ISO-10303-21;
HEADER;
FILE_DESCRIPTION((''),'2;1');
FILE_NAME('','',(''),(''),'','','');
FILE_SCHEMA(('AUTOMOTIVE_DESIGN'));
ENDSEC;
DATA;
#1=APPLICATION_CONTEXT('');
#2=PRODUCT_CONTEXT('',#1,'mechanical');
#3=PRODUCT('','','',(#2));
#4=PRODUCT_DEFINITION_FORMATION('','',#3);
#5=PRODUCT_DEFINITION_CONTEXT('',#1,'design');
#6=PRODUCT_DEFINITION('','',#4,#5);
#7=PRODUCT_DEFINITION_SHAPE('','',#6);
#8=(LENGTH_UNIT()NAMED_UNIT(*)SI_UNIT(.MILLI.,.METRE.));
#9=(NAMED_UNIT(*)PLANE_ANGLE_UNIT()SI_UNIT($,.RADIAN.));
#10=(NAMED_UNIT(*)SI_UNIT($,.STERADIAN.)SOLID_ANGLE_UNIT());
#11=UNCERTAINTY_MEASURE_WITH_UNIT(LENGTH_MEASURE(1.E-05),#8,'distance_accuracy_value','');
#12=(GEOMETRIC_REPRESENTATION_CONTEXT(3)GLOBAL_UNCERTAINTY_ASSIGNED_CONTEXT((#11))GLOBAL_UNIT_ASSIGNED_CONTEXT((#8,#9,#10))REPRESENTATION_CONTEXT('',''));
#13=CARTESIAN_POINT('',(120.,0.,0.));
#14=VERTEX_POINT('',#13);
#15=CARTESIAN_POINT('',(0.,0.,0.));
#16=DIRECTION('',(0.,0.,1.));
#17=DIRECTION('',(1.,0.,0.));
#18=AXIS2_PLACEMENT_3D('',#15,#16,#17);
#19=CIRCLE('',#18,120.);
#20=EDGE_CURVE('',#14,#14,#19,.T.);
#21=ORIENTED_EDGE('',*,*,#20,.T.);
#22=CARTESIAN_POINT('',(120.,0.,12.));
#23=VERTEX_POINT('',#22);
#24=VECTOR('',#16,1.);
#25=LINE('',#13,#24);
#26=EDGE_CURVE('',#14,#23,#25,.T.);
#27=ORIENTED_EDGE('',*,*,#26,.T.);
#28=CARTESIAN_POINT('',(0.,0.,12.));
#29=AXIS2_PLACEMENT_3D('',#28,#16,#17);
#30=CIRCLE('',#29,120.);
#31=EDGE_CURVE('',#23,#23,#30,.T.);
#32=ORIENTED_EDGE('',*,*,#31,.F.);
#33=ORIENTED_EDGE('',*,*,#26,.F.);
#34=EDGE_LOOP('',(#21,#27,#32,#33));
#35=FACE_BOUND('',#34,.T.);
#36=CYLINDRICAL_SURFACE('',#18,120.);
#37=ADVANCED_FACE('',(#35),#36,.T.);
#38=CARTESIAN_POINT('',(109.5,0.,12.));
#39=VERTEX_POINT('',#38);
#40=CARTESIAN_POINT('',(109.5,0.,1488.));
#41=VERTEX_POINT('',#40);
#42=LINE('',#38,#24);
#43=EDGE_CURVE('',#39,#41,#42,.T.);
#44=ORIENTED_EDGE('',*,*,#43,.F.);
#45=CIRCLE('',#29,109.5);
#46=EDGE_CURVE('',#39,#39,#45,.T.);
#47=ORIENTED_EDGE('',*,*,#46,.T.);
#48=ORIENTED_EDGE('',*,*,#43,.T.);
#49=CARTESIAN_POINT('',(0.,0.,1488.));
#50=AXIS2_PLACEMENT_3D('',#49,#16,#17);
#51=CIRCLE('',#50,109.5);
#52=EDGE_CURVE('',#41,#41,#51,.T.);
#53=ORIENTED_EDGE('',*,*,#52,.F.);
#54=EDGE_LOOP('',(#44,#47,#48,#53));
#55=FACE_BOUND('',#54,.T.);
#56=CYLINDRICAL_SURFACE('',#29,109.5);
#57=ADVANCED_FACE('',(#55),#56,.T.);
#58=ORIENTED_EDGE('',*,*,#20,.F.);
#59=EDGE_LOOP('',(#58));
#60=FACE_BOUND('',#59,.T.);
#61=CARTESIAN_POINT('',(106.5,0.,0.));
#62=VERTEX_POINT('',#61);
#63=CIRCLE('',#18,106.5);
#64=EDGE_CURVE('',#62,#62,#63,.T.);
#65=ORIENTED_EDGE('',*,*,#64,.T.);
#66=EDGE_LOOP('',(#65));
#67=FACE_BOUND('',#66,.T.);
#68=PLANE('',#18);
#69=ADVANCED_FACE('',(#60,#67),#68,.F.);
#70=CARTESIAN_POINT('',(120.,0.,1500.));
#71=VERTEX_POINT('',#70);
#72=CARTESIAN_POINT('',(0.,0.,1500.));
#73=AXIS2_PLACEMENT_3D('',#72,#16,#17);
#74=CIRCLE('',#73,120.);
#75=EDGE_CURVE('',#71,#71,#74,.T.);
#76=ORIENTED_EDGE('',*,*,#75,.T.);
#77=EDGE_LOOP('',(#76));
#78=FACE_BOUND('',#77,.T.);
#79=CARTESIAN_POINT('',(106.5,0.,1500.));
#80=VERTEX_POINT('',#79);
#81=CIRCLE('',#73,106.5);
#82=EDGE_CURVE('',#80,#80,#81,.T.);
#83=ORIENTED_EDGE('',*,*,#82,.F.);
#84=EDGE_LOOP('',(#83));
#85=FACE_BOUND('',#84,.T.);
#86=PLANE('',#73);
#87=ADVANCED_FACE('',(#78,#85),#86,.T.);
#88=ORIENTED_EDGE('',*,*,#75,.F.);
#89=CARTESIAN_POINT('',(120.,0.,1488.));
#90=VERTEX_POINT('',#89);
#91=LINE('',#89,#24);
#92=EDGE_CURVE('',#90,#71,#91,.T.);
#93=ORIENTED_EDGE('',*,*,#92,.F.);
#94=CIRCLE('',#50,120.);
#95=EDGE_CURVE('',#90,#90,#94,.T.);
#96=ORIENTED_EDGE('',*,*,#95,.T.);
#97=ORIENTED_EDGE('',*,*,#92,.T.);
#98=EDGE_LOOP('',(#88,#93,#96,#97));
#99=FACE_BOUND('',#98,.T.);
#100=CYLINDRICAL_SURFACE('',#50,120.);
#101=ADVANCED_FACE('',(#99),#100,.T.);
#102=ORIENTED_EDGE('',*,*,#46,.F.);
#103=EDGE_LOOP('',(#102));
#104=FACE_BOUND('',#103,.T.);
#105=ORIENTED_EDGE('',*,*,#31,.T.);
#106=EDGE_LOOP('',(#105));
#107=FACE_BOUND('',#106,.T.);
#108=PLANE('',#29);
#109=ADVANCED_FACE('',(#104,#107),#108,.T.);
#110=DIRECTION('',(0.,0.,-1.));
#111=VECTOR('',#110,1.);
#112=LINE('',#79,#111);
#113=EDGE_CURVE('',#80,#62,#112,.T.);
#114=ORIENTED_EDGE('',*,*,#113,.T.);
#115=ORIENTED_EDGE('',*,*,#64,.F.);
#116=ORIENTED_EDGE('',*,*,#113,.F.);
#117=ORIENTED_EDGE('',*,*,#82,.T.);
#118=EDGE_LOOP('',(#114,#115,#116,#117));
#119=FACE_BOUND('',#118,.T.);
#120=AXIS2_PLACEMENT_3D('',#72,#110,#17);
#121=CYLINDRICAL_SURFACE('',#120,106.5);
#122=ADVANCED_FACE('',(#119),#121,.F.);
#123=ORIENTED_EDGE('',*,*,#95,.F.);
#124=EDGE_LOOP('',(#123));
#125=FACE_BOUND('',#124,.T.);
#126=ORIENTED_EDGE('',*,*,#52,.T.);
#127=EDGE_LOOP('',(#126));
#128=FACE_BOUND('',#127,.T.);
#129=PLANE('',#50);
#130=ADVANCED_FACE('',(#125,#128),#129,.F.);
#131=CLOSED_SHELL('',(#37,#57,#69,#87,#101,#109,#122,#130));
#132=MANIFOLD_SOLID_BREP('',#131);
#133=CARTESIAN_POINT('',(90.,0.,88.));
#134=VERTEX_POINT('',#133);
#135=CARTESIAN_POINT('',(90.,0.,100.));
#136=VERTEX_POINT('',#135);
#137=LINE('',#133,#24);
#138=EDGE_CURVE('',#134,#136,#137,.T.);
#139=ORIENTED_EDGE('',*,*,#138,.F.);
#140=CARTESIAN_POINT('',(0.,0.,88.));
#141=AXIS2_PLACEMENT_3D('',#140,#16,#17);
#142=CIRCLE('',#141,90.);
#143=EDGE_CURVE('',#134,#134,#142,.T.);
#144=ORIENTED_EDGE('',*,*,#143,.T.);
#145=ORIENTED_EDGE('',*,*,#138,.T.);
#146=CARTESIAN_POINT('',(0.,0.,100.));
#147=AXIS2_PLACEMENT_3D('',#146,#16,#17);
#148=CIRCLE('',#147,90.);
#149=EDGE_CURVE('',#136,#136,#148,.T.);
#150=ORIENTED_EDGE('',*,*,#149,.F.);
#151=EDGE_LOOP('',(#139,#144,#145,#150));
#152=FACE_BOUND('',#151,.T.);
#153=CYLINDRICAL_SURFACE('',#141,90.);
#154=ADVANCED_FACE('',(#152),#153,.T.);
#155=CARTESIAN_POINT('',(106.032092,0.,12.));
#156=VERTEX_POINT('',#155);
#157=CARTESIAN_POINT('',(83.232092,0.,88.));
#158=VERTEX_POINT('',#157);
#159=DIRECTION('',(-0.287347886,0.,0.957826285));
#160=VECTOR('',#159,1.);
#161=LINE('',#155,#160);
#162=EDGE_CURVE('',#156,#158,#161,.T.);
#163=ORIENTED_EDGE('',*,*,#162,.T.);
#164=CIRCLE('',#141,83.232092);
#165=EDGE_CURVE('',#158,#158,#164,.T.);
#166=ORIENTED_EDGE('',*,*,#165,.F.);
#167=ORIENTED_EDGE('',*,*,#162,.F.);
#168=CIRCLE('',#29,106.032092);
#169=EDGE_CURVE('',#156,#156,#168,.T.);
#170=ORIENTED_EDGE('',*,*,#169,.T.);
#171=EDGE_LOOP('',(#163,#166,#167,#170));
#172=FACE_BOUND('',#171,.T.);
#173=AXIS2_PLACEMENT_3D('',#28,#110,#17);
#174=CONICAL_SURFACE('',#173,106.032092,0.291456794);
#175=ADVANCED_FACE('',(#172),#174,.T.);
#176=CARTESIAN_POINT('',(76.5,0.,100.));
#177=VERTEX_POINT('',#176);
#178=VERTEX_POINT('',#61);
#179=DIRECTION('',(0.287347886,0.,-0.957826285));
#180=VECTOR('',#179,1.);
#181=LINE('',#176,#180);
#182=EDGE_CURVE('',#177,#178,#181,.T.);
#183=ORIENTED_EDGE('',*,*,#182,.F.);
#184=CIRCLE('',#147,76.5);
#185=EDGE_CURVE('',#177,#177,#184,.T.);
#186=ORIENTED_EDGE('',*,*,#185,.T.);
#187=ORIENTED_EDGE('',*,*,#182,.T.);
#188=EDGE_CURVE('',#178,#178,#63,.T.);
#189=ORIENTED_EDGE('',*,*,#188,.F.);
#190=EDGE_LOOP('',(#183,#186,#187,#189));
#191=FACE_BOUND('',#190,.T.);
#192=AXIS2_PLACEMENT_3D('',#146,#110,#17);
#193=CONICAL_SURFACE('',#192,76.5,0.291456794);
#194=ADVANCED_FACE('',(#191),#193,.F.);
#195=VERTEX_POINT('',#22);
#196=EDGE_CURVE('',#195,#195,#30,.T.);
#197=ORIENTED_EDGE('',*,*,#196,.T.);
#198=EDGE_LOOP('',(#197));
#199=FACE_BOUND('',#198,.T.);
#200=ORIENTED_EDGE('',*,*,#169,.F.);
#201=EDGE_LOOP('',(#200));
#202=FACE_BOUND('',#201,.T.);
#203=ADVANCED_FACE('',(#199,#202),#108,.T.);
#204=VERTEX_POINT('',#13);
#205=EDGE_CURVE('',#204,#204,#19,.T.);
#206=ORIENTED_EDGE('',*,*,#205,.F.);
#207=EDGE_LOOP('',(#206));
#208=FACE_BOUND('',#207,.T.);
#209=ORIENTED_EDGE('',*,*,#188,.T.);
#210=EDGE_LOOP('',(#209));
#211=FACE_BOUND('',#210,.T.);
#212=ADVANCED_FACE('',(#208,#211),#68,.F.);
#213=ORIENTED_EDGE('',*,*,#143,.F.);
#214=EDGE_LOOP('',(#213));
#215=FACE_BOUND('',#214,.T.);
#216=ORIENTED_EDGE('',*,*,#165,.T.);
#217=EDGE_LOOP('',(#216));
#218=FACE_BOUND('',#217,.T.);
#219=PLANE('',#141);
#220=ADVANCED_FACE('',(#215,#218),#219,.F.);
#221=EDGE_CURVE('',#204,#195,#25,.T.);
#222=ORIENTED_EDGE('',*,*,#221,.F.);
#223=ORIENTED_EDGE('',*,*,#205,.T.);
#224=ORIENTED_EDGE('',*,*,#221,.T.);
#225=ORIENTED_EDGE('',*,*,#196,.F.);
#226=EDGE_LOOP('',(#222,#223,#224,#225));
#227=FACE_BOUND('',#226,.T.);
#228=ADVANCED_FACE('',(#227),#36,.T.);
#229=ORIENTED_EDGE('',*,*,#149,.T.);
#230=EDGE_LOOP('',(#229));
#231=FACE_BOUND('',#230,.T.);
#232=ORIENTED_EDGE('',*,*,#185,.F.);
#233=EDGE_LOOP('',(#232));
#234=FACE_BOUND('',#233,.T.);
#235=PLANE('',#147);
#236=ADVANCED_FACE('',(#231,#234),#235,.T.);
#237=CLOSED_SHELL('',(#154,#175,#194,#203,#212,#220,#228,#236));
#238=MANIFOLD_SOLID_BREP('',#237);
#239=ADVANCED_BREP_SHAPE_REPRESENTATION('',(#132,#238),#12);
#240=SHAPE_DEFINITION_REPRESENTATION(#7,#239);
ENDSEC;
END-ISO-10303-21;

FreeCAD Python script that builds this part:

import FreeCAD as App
import Part
import Sketcher
Q = App.Units.Quantity

doc = App.newDocument("Part")
body = doc.addObject("PartDesign::Body", "Body")

# Sketch on XZ plane
sketch1 = body.newObject("Sketcher::SketchObject", "Sketch")
sketch1.AttachmentSupport = (doc.getObject("XZ_Plane"), [""])
sketch1.MapMode = "FlatFace"
sketch1.addGeometry(Part.LineSegment(App.Vector(106, 1500, 0), App.Vector(106, 0, 0)), False)
sketch1.addGeometry(Part.LineSegment(App.Vector(106, 0, 0), App.Vector(120, 0, 0)), False)
sketch1.addGeometry(Part.LineSegment(App.Vector(120, 0, 0), App.Vector(120, 12, 0)), False)
sketch1.addGeometry(Part.LineSegment(App.Vector(120, 12, 0), App.Vector(110, 12, 0)), False)
sketch1.addGeometry(Part.LineSegment(App.Vector(110, 12, 0), App.Vector(110, 1488, 0)), False)
sketch1.addGeometry(Part.LineSegment(App.Vector(110, 1488, 0), App.Vector(120, 1488, 0)), False)
sketch1.addGeometry(Part.LineSegment(App.Vector(120, 1488, 0), App.Vector(120, 1500, 0)), False)
sketch1.addGeometry(Part.LineSegment(App.Vector(120, 1500, 0), App.Vector(106, 1500, 0)), False)
sketch1.addConstraint(Sketcher.Constraint("Coincident", 0, 2, 1, 1))
sketch1.addConstraint(Sketcher.Constraint("Coincident", 1, 2, 2, 1))
sketch1.addConstraint(Sketcher.Constraint("Coincident", 2, 2, 3, 1))
sketch1.addConstraint(Sketcher.Constraint("Coincident", 3, 2, 4, 1))
sketch1.addConstraint(Sketcher.Constraint("Coincident", 4, 2, 5, 1))
sketch1.addConstraint(Sketcher.Constraint("Coincident", 5, 2, 6, 1))
sketch1.addConstraint(Sketcher.Constraint("Coincident", 6, 2, 7, 1))
sketch1.addConstraint(Sketcher.Constraint("Coincident", 7, 2, 0, 1))
sketch1.addConstraint(Sketcher.Constraint("Vertical", 0))
sketch1.addConstraint(Sketcher.Constraint("Horizontal", 1))
sketch1.addConstraint(Sketcher.Constraint("Vertical", 2))
sketch1.addConstraint(Sketcher.Constraint("Horizontal", 3))
sketch1.addConstraint(Sketcher.Constraint("Vertical", 4))
sketch1.addConstraint(Sketcher.Constraint("Horizontal", 5))
sketch1.addConstraint(Sketcher.Constraint("Vertical", 6))
sketch1.addConstraint(Sketcher.Constraint("Horizontal", 7))
sketch1.addConstraint(Sketcher.Constraint("PointOnObject", 0, 2, -1))
sketch1.addConstraint(Sketcher.Constraint("Vertical", 2, 2, 5, 2))
sketch1.addConstraint(Sketcher.Constraint("Equal", 2, 6))
sketch1.addConstraint(Sketcher.Constraint("DistanceY", 0, 2, 0, 1, Q("1500 mm")))
sketch1.addConstraint(Sketcher.Constraint("DistanceY", 2, 1, 2, 2, Q("12 mm")))
sketch1.addConstraint(Sketcher.Constraint("DistanceX", 1, 1, 1, 2, Q("13.5 mm")))
sketch1.addConstraint(Sketcher.Constraint("DistanceX", 3, 2, 3, 1, Q("10.5 mm")))
sketch1.addConstraint(Sketcher.Constraint("DistanceX", -1, 1, 1, 2, Q("120 mm")))
revolution = body.newObject("PartDesign::Revolution", "Revolution")
revolution.Profile = sketch1
revolution.ReferenceAxis = (sketch1, ["V_Axis"])
revolution.Angle = 360
body2 = doc.addObject("PartDesign::Body", "Body001")

# Sketch on XZ plane
sketch2 = body2.newObject("Sketcher::SketchObject", "Sketch001")
sketch2.AttachmentSupport = (doc.getObject("XZ_Plane001"), [""])
sketch2.MapMode = "FlatFace"
sketch2.addGeometry(Part.LineSegment(App.Vector(76, 100, 0), App.Vector(106, 0, 0)), False)
sketch2.addGeometry(Part.LineSegment(App.Vector(106, 0, 0), App.Vector(120, 0, 0)), False)
sketch2.addGeometry(Part.LineSegment(App.Vector(120, 0, 0), App.Vector(120, 12, 0)), False)
sketch2.addGeometry(Part.LineSegment(App.Vector(120, 12, 0), App.Vector(106, 12, 0)), False)
sketch2.addGeometry(Part.LineSegment(App.Vector(106, 12, 0), App.Vector(83, 88, 0)), False)
sketch2.addGeometry(Part.LineSegment(App.Vector(83, 88, 0), App.Vector(90, 88, 0)), False)
sketch2.addGeometry(Part.LineSegment(App.Vector(90, 88, 0), App.Vector(90, 100, 0)), False)
sketch2.addGeometry(Part.LineSegment(App.Vector(90, 100, 0), App.Vector(76, 100, 0)), False)
sketch2.addConstraint(Sketcher.Constraint("Coincident", 0, 2, 1, 1))
sketch2.addConstraint(Sketcher.Constraint("Coincident", 1, 2, 2, 1))
sketch2.addConstraint(Sketcher.Constraint("Coincident", 2, 2, 3, 1))
sketch2.addConstraint(Sketcher.Constraint("Coincident", 3, 2, 4, 1))
sketch2.addConstraint(Sketcher.Constraint("Coincident", 4, 2, 5, 1))
sketch2.addConstraint(Sketcher.Constraint("Coincident", 5, 2, 6, 1))
sketch2.addConstraint(Sketcher.Constraint("Coincident", 6, 2, 7, 1))
sketch2.addConstraint(Sketcher.Constraint("Coincident", 7, 2, 0, 1))
sketch2.addConstraint(Sketcher.Constraint("Horizontal", 1))
sketch2.addConstraint(Sketcher.Constraint("Vertical", 2))
sketch2.addConstraint(Sketcher.Constraint("Horizontal", 3))
sketch2.addConstraint(Sketcher.Constraint("Horizontal", 5))
sketch2.addConstraint(Sketcher.Constraint("Vertical", 6))
sketch2.addConstraint(Sketcher.Constraint("Horizontal", 7))
sketch2.addConstraint(Sketcher.Constraint("PointOnObject", 0, 2, -1))
sketch2.addConstraint(Sketcher.Constraint("Parallel", 0, 4))
sketch2.addConstraint(Sketcher.Constraint("Equal", 1, 7))
sketch2.addConstraint(Sketcher.Constraint("Equal", 2, 6))
sketch2.addConstraint(Sketcher.Constraint("DistanceY", 2, 1, 2, 2, Q("12 mm")))
sketch2.addConstraint(Sketcher.Constraint("DistanceX", 1, 1, 1, 2, Q("13.5 mm")))
sketch2.addConstraint(Sketcher.Constraint("DistanceX", -1, 1, 1, 2, Q("120 mm")))
sketch2.addConstraint(Sketcher.Constraint("DistanceY", -1, 1, 4, 2, Q("88 mm")))
sketch2.addConstraint(Sketcher.Constraint("DistanceX", -1, 1, 5, 2, Q("90 mm")))
sketch2.addConstraint(Sketcher.Constraint("DistanceX", 5, 1, 5, 2, Q("6.767908 mm")))
revolution2 = body2.newObject("PartDesign::Revolution", "Revolution001")
revolution2.Profile = sketch2
revolution2.ReferenceAxis = (sketch2, ["V_Axis"])
revolution2.Angle = 360

doc.recompute()
